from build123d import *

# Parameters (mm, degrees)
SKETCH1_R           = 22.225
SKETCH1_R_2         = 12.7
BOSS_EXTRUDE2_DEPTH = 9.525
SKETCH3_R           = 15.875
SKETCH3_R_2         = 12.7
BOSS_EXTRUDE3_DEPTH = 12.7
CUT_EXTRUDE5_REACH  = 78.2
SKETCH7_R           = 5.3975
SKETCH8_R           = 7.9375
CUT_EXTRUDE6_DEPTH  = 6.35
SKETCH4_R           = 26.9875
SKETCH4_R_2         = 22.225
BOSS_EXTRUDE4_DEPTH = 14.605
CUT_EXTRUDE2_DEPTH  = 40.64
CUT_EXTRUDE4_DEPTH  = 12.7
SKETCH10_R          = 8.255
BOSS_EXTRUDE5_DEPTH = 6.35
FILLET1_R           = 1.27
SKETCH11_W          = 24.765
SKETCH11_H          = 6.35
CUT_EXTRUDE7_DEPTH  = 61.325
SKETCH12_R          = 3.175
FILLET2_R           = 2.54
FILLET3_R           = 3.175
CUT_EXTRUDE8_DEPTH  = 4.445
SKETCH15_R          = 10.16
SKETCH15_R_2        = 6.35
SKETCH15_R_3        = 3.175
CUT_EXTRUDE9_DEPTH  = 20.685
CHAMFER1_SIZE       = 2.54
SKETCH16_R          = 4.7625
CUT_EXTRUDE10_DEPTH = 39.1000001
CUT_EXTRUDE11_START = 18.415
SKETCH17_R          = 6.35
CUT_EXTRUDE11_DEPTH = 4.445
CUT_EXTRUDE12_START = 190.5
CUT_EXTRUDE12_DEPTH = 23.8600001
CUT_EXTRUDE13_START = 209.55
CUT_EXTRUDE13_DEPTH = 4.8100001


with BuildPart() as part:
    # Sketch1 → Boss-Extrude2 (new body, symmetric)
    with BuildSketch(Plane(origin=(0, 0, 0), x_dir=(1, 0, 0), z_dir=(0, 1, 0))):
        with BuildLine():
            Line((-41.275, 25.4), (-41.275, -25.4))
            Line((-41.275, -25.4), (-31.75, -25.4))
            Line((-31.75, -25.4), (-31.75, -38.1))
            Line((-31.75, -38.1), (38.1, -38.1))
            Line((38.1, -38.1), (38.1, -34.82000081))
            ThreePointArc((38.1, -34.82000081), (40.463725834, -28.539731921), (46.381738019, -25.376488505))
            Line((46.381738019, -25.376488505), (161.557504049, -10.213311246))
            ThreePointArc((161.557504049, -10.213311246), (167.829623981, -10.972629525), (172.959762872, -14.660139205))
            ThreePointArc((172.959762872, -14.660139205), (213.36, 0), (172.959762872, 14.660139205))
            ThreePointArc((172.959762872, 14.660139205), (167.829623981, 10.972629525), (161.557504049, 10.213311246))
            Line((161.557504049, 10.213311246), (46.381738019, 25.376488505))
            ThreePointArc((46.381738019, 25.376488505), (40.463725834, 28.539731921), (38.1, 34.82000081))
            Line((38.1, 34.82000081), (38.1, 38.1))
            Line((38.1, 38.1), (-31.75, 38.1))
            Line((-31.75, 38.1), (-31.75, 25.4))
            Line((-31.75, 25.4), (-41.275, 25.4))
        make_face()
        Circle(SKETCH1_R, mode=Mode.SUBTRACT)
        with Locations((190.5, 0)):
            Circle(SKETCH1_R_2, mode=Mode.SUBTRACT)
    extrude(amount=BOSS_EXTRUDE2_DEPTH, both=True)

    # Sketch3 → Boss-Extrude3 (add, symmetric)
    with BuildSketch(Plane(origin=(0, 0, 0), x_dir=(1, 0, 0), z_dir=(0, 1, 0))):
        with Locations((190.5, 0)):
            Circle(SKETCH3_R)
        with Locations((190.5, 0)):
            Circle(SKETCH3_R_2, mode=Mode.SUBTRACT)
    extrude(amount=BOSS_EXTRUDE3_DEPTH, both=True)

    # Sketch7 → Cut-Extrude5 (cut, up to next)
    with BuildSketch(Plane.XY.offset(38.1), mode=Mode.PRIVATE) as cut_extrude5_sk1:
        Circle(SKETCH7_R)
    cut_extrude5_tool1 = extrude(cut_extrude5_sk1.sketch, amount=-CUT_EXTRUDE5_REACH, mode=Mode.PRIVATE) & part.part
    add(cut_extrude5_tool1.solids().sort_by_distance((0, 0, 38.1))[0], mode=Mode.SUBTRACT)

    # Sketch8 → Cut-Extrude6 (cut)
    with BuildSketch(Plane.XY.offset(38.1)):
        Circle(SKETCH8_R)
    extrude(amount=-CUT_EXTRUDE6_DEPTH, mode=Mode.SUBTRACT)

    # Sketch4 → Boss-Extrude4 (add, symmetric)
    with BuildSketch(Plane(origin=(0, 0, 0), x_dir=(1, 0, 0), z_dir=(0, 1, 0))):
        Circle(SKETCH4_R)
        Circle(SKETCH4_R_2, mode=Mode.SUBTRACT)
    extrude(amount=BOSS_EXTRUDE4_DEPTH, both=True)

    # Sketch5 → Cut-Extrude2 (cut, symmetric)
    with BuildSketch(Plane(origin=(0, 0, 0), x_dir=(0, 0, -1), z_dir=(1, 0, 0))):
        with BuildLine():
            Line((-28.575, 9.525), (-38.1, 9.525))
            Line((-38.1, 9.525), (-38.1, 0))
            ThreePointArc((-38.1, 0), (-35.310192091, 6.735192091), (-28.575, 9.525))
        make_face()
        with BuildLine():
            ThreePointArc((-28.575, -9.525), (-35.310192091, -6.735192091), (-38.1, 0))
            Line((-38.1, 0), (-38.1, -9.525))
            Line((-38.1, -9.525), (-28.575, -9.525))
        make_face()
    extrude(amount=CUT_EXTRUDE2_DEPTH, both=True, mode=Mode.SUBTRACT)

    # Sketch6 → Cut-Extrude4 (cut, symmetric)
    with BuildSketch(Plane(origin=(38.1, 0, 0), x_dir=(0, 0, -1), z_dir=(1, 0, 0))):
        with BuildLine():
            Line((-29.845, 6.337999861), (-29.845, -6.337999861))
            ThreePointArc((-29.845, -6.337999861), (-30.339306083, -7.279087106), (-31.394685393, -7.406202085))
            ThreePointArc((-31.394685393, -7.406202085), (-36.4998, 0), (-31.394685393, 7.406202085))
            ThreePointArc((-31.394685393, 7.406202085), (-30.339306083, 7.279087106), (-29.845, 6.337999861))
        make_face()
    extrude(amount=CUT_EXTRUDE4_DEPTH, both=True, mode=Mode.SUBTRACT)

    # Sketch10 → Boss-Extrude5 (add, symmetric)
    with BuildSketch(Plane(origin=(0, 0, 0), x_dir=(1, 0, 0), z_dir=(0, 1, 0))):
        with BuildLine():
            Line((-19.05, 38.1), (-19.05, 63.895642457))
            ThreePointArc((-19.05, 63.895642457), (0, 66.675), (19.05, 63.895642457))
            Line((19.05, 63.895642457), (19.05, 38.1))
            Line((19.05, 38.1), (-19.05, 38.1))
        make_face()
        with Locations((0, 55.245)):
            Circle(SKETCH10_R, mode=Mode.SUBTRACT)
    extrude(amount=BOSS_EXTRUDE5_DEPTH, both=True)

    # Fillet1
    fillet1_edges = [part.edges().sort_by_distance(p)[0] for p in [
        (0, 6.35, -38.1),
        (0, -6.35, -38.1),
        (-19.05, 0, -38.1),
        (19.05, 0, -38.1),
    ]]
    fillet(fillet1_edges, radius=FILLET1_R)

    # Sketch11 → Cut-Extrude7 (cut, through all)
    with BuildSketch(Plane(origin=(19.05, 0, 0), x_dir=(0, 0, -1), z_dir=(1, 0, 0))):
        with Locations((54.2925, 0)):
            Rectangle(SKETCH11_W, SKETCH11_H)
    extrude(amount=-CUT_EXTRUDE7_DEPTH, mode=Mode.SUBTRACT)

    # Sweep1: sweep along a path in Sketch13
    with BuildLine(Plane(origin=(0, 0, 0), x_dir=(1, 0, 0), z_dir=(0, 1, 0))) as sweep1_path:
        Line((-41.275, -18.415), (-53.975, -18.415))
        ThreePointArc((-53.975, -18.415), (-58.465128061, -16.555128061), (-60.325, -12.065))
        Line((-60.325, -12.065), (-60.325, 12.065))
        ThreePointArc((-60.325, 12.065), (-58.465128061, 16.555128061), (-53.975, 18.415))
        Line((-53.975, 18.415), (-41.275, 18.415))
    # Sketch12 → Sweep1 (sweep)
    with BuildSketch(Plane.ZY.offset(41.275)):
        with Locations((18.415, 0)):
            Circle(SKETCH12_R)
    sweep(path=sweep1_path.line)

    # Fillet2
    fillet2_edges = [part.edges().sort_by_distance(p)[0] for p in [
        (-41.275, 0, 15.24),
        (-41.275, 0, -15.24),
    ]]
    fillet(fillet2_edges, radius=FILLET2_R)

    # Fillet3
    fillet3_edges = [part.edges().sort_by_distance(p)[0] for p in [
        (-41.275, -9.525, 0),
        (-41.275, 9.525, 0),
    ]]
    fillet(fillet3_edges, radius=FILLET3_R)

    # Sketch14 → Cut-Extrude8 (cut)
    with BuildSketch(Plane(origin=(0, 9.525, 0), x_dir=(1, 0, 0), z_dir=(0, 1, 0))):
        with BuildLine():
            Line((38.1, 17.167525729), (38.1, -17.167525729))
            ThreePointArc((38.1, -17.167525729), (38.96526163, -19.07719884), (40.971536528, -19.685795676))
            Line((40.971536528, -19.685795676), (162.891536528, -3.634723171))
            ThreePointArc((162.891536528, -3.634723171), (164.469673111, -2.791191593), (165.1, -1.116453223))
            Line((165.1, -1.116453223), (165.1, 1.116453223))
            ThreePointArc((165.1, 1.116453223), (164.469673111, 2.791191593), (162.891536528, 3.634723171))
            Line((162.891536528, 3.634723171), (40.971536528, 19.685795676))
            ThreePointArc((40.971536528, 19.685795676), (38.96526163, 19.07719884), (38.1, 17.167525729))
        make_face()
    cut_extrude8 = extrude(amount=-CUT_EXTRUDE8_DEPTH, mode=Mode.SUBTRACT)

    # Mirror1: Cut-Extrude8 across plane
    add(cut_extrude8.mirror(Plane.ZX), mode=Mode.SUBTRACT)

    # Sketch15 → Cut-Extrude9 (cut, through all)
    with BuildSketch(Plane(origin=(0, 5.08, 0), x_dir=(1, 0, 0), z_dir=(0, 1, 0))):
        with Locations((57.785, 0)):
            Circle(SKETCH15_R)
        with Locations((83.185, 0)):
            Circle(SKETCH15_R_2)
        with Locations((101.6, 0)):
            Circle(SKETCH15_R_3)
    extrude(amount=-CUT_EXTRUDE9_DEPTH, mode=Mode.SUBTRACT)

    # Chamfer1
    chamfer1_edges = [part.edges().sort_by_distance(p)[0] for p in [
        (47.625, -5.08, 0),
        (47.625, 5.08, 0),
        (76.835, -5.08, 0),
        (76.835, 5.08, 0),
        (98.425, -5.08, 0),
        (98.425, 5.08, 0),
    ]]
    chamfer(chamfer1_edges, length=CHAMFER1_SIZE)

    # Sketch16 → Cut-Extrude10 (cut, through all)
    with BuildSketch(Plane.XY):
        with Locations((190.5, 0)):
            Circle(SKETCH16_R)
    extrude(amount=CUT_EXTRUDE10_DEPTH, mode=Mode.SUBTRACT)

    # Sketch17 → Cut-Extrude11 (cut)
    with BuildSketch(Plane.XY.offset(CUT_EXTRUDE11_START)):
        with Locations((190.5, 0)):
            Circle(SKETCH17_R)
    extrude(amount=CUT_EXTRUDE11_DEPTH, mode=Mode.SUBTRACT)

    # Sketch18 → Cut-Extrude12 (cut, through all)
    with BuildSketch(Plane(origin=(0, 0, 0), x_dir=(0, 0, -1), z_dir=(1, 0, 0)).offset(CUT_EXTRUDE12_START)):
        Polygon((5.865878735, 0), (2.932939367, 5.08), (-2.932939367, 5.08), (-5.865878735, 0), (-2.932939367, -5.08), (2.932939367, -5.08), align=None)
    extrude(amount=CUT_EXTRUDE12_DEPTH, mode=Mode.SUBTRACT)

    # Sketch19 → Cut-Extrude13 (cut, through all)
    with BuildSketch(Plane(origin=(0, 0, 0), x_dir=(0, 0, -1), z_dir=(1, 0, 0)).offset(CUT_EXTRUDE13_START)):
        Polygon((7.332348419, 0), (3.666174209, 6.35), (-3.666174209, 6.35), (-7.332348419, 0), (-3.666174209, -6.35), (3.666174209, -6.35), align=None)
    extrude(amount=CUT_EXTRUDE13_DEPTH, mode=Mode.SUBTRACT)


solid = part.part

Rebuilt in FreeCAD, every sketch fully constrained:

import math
import FreeCAD as App
import Part
import Sketcher

V = App.Vector
Q = App.Units.Quantity


def edges_at(feature, points):
    """Names of the edges that pass closest to the given points."""
    edges = feature.Shape.Edges
    near = lambda p: min(range(len(edges)), key=lambda i: edges[i].distToShape(Part.Vertex(*p))[0])
    return sorted({f"Edge{near(p) + 1}" for p in points})

doc = App.newDocument("Part")
body = doc.addObject("PartDesign::Body", "Body")

sketch1 = body.newObject("Sketcher::SketchObject", "Sketch")
sketch1.AttachmentSupport = (doc.getObject("XZ_Plane"), [""])
sketch1.MapMode = "FlatFace"
sketch1.addGeometry([
    Part.LineSegment(V(-41.275, -25.4, 0), V(-41.275, 25.4, 0)),
    Part.LineSegment(V(-41.275, 25.4, 0), V(-31.75, 25.4, 0)),
    Part.LineSegment(V(-31.75, 25.4, 0), V(-31.75, 38.1, 0)),
    Part.LineSegment(V(-31.75, 38.1, 0), V(38.1, 38.1, 0)),
    Part.LineSegment(V(38.1, 38.1, 0), V(38.1, 34.820001, 0)),
    Part.ArcOfCircle(Part.Circle(V(47.625, 34.820001, 0), V(0, 0, 1), 9.525), math.radians(180), math.radians(262.5)),
    Part.LineSegment(V(46.381738, 25.376489, 0), V(161.557504, 10.213311, 0)),
    Part.ArcOfCircle(Part.Circle(V(163.215187, 22.804661, 0), V(0, 0, 1), 12.7), math.radians(-97.5), math.radians(-39.888895)),
    Part.ArcOfCircle(Part.Circle(V(190.5, 0, 0), V(0, 0, 1), 22.86), math.radians(-140.111105), math.radians(140.111105)),
    Part.ArcOfCircle(Part.Circle(V(163.215187, -22.804661, 0), V(0, 0, 1), 12.7), math.radians(39.888895), math.radians(97.5)),
    Part.LineSegment(V(161.557504, -10.213311, 0), V(46.381738, -25.376489, 0)),
    Part.ArcOfCircle(Part.Circle(V(47.625, -34.820001, 0), V(0, 0, 1), 9.525), math.radians(97.5), math.radians(180)),
    Part.LineSegment(V(38.1, -34.820001, 0), V(38.1, -38.1, 0)),
    Part.LineSegment(V(38.1, -38.1, 0), V(-31.75, -38.1, 0)),
    Part.LineSegment(V(-31.75, -38.1, 0), V(-31.75, -25.4, 0)),
    Part.LineSegment(V(-31.75, -25.4, 0), V(-41.275, -25.4, 0)),
    Part.Circle(V(0, 0, 0), V(0, 0, 1), 22.225),
    Part.Circle(V(190.5, 0, 0), V(0, 0, 1), 12.7),
], False)
sketch1.addConstraint([
    Sketcher.Constraint("Coincident", 0, 2, 1, 1),
    Sketcher.Constraint("Coincident", 1, 2, 2, 1),
    Sketcher.Constraint("Coincident", 2, 2, 3, 1),
    Sketcher.Constraint("Coincident", 3, 2, 4, 1),
    Sketcher.Constraint("Tangent", 4, 2, 5, 1),
    Sketcher.Constraint("Tangent", 5, 2, 6, 1),
    Sketcher.Constraint("Tangent", 6, 2, 7, 1),
    Sketcher.Constraint("Tangent", 7, 2, 8, 2),
    Sketcher.Constraint("Tangent", 8, 1, 9, 1),
    Sketcher.Constraint("Tangent", 9, 2, 10, 1),
    Sketcher.Constraint("Tangent", 10, 2, 11, 1),
    Sketcher.Constraint("Tangent", 11, 2, 12, 1),
    Sketcher.Constraint("Coincident", 12, 2, 13, 1),
    Sketcher.Constraint("Coincident", 13, 2, 14, 1),
    Sketcher.Constraint("Coincident", 14, 2, 15, 1),
    Sketcher.Constraint("Coincident", 15, 2, 0, 1),
    Sketcher.Constraint("Vertical", 0),
    Sketcher.Constraint("Horizontal", 1),
    Sketcher.Constraint("Vertical", 2),
    Sketcher.Constraint("Horizontal", 3),
    Sketcher.Constraint("Vertical", 4),
    Sketcher.Constraint("Vertical", 12),
    Sketcher.Constraint("Horizontal", 13),
    Sketcher.Constraint("Vertical", 14),
    Sketcher.Constraint("Horizontal", 15),
    Sketcher.Constraint("Coincident", 16, 3, -1, 1),
    Sketcher.Constraint("Coincident", 17, 3, 8, 3),
    Sketcher.Constraint("Equal", 7, 9),
    Sketcher.Constraint("Equal", 5, 11),
    Sketcher.Constraint("Equal", 9, 17),
    Sketcher.Constraint("Symmetric", 7, 3, 9, 3, -1),
    Sketcher.Constraint("Symmetric", 5, 3, 11, 3, -1),
    Sketcher.Constraint("Symmetric", 2, 2, 13, 2, -1),
    Sketcher.Constraint("Equal", 2, 14),
    Sketcher.Constraint("Diameter", 17, Q("1 in")),
    Sketcher.Constraint("Radius", 8, Q("0.9 in")),
    Sketcher.Constraint("Diameter", 16, Q("1.75 in")),
    Sketcher.Constraint("DistanceY", 0, 1, 0, 2, Q("2 in")),
    Sketcher.Constraint("DistanceY", 2, 1, 2, 2, Q("0.5 in")),
    Sketcher.Constraint("Radius", 5, Q("0.375 in")),
    Sketcher.Constraint("DistanceX", 3, 1, 3, 2, Q("2.75 in")),
    Sketcher.Constraint("DistanceX", -1, 1, 8, 3, Q("7.5 in")),
    Sketcher.Constraint("DistanceX", -1, 1, 3, 2, Q("1.5 in")),
    Sketcher.Constraint("Angle", 6, Q("-7.5 deg")),
    Sketcher.Constraint("DistanceX", 0, 2, 5, 3, Q("3.5 in")),
    Sketcher.Constraint("DistanceY", 4, 2, 4, 1, Q("3.279999 mm")),
])
pad1 = body.newObject("PartDesign::Pad", "Pad")
pad1.Profile = sketch1
pad1.Length = Q("0.75 in")
pad1.Midplane = True

sketch2 = body.newObject("Sketcher::SketchObject", "Sketch001")
sketch2.AttachmentSupport = (doc.getObject("XZ_Plane"), [""])
sketch2.MapMode = "FlatFace"
sketch2.addGeometry([
    Part.Circle(V(190.5, 0, 0), V(0, 0, 1), 15.875),
    Part.Circle(V(190.5, 0, 0), V(0, 0, 1), 12.7),
], False)
sketch2.addConstraint([
    Sketcher.Constraint("Coincident", 1, 3, 0, 3),
    Sketcher.Constraint("PointOnObject", 0, 3, -1),
    Sketcher.Constraint("Diameter", 1, Q("1 in")),
    Sketcher.Constraint("Diameter", 0, Q("1.25 in")),
    Sketcher.Constraint("DistanceX", -1, 1, 0, 3, Q("7.5 in")),
])
pad2 = body.newObject("PartDesign::Pad", "Pad001")
pad2.Profile = sketch2
pad2.Length = Q("1 in")
pad2.Midplane = True

sketch3 = body.newObject("Sketcher::SketchObject", "Sketch002")
sketch3.AttachmentSupport = (doc.getObject("XY_Plane"), [""])
sketch3.MapMode = "FlatFace"
sketch3.AttachmentOffset = App.Placement(V(0, 0, 1.5 * 25.4), App.Rotation())
sketch3.addGeometry(Part.Circle(V(0, 0, 0), V(0, 0, 1), 5.3975), False)
sketch3.addConstraint([
    Sketcher.Constraint("Coincident", 0, 3, -1, 1),
    Sketcher.Constraint("Diameter", 0, Q("0.425 in")),
])
pocket1 = body.newObject("PartDesign::Pocket", "Pocket")
pocket1.Profile = sketch3
pocket1.Type = "UpToFirst"

sketch4 = body.newObject("Sketcher::SketchObject", "Sketch003")
sketch4.AttachmentSupport = (doc.getObject("XY_Plane"), [""])
sketch4.MapMode = "FlatFace"
sketch4.AttachmentOffset = App.Placement(V(0, 0, 1.5 * 25.4), App.Rotation())
sketch4.addGeometry(Part.Circle(V(0, 0, 0), V(0, 0, 1), 7.9375), False)
sketch4.addConstraint([
    Sketcher.Constraint("Coincident", 0, 3, -1, 1),
    Sketcher.Constraint("Diameter", 0, Q("0.625 in")),
])
pocket2 = body.newObject("PartDesign::Pocket", "Pocket001")
pocket2.Profile = sketch4
pocket2.Length = Q("0.25 in")

sketch5 = body.newObject("Sketcher::SketchObject", "Sketch004")
sketch5.AttachmentSupport = (doc.getObject("XZ_Plane"), [""])
sketch5.MapMode = "FlatFace"
sketch5.addGeometry([
    Part.Circle(V(0, 0, 0), V(0, 0, 1), 26.9875),
    Part.Circle(V(0, 0, 0), V(0, 0, 1), 22.225),
], False)
sketch5.addConstraint([
    Sketcher.Constraint("Coincident", 0, 3, -1, 1),
    Sketcher.Constraint("Coincident", 1, 3, -1, 1),
    Sketcher.Constraint("Diameter", 1, Q("1.75 in")),
    Sketcher.Constraint("Diameter", 0, Q("2.125 in")),
])
pad3 = body.newObject("PartDesign::Pad", "Pad002")
pad3.Profile = sketch5
pad3.Length = Q("1.15 in")
pad3.Midplane = True

sketch6 = body.newObject("Sketcher::SketchObject", "Sketch005")
sketch6.AttachmentSupport = (doc.getObject("YZ_Plane"), [""])
sketch6.MapMode = "FlatFace"
sketch6.addGeometry([
    Part.LineSegment(V(9.525, 28.575, 0), V(9.525, 38.1, 0)),
    Part.LineSegment(V(9.525, 38.1, 0), V(0, 38.1, 0)),
    Part.ArcOfCircle(Part.Circle(V(0, 28.575, 0), V(0, 0, 1), 9.525), math.radians(0), math.radians(90)),
    Part.ArcOfCircle(Part.Circle(V(0, 28.575, 0), V(0, 0, 1), 9.525), math.radians(90), math.radians(180)),
    Part.LineSegment(V(0, 38.1, 0), V(-9.525, 38.1, 0)),
    Part.LineSegment(V(-9.525, 38.1, 0), V(-9.525, 28.575, 0)),
], False)
sketch6.addConstraint([
    Sketcher.Constraint("Coincident", 0, 2, 1, 1),
    Sketcher.Constraint("Tangent", 1, 2, 2, 2),
    Sketcher.Constraint("Tangent", 2, 1, 0, 1),
    Sketcher.Constraint("Tangent", 3, 1, 4, 1),
    Sketcher.Constraint("Coincident", 4, 2, 5, 1),
    Sketcher.Constraint("Tangent", 5, 2, 3, 2),
    Sketcher.Constraint("Vertical", 0),
    Sketcher.Constraint("Horizontal", 1),
    Sketcher.Constraint("Horizontal", 4),
    Sketcher.Constraint("Vertical", 5),
    Sketcher.Constraint("Coincident", 3, 3, 2, 3),
    Sketcher.Constraint("Equal", 2, 3),
    Sketcher.Constraint("PointOnObject", 2, 3, -2),
    Sketcher.Constraint("Radius", 2, Q("0.375 in")),
    Sketcher.Constraint("DistanceY", -1, 1, 0, 2, Q("1.5 in")),
])
pocket3 = body.newObject("PartDesign::Pocket", "Pocket002")
pocket3.Profile = sketch6
pocket3.Length = Q("3.2 in")
pocket3.Midplane = True

sketch7 = body.newObject("Sketcher::SketchObject", "Sketch006")
sketch7.AttachmentSupport = (doc.getObject("YZ_Plane"), [""])
sketch7.MapMode = "FlatFace"
sketch7.AttachmentOffset = App.Placement(V(0, 0, 1.5 * 25.4), App.Rotation())
sketch7.addGeometry([
    Part.LineSegment(V(-6.338, 29.845, 0), V(6.338, 29.845, 0)),
    Part.ArcOfCircle(Part.Circle(V(6.338, 30.988, 0), V(0, 0, 1), 1.143), math.radians(-90), math.radians(20.842804)),
    Part.ArcOfCircle(Part.Circle(V(0, 28.575, 0), V(0, 0, 1), 7.9248), math.radians(20.842804), math.radians(159.157196)),
    Part.ArcOfCircle(Part.Circle(V(-6.338, 30.988, 0), V(0, 0, 1), 1.143), math.radians(159.157196), math.radians(270)),
], False)
sketch7.addConstraint([
    Sketcher.Constraint("Tangent", 0, 2, 1, 1),
    Sketcher.Constraint("Tangent", 1, 2, 2, 1),
    Sketcher.Constraint("Tangent", 2, 2, 3, 1),
    Sketcher.Constraint("Tangent", 3, 2, 0, 1),
    Sketcher.Constraint("Horizontal", 0),
    Sketcher.Constraint("Equal", 1, 3),
    Sketcher.Constraint("PointOnObject", 2, 3, -2),
    Sketcher.Constraint("Radius", 1, Q("0.045 in")),
    Sketcher.Constraint("Radius", 2, Q("0.312 in")),
    Sketcher.Constraint("DistanceY", -1, 1, 1, 3, Q("1.22 in")),
    Sketcher.Constraint("DistanceY", 2, 3, 0, 2, Q("0.05 in")),
])
pocket4 = body.newObject("PartDesign::Pocket", "Pocket003")
pocket4.Profile = sketch7
pocket4.Length = Q("1 in")
pocket4.Midplane = True

sketch8 = body.newObject("Sketcher::SketchObject", "Sketch007")
sketch8.AttachmentSupport = (doc.getObject("XZ_Plane"), [""])
sketch8.MapMode = "FlatFace"
sketch8.addGeometry([
    Part.LineSegment(V(-19.05, -63.895642, 0), V(-19.05, -38.1, 0)),
    Part.LineSegment(V(-19.05, -38.1, 0), V(19.05, -38.1, 0)),
    Part.LineSegment(V(19.05, -38.1, 0), V(19.05, -63.895642, 0)),
    Part.ArcOfCircle(Part.Circle(V(0, 0, 0), V(0, 0, 1), 66.675), math.radians(-106.60155), math.radians(-73.39845)),
    Part.Circle(V(0, -55.245, 0), V(0, 0, 1), 8.255),
], False)
sketch8.addConstraint([
    Sketcher.Constraint("Coincident", 0, 2, 1, 1),
    Sketcher.Constraint("Coincident", 1, 2, 2, 1),
    Sketcher.Constraint("Coincident", 2, 2, 3, 2),
    Sketcher.Constraint("Coincident", 3, 1, 0, 1),
    Sketcher.Constraint("Vertical", 0),
    Sketcher.Constraint("Horizontal", 1),
    Sketcher.Constraint("Vertical", 2),
    Sketcher.Constraint("Coincident", 3, 3, -1, 1),
    Sketcher.Constraint("PointOnObject", 4, 3, -2),
    Sketcher.Constraint("Horizontal", 2, 2, 3, 1),
    Sketcher.Constraint("Diameter", 4, Q("0.65 in")),
    Sketcher.Constraint("DistanceX", 1, 1, 1, 2, Q("1.5 in")),
    Sketcher.Constraint("Radius", 3, Q("2.625 in")),
    Sketcher.Constraint("DistanceY", 0, 2, -1, 1, Q("1.5 in")),
    Sketcher.Constraint("DistanceY", 4, 3, -1, 1, Q("2.175 in")),
])
pad4 = body.newObject("PartDesign::Pad", "Pad003")
pad4.Profile = sketch8
pad4.Length = Q("0.5 in")
pad4.Midplane = True
doc.recompute()

fillet = body.newObject("PartDesign::Fillet", "Fillet")
fillet.Base = (pad4, edges_at(pad4, [
    (0, 6.35, -38.1),
    (0, -6.35, -38.1),
    (-19.05, 0, -38.1),
    (19.05, 0, -38.1),
]))
fillet.Radius = Q("0.05 in")

sketch9 = body.newObject("Sketcher::SketchObject", "Sketch008")
sketch9.AttachmentSupport = (doc.getObject("YZ_Plane"), [""])
sketch9.MapMode = "FlatFace"
sketch9.AttachmentOffset = App.Placement(V(0, 0, 0.75 * 25.4), App.Rotation())
sketch9.addGeometry([
    Part.LineSegment(V(3.175, -41.91, 0), V(-3.175, -41.91, 0)),
    Part.LineSegment(V(-3.175, -41.91, 0), V(-3.175, -66.675, 0)),
    Part.LineSegment(V(-3.175, -66.675, 0), V(3.175, -66.675, 0)),
    Part.LineSegment(V(3.175, -66.675, 0), V(3.175, -41.91, 0)),
], False)
sketch9.addConstraint([
    Sketcher.Constraint("Coincident", 0, 2, 1, 1),
    Sketcher.Constraint("Coincident", 1, 2, 2, 1),
    Sketcher.Constraint("Coincident", 2, 2, 3, 1),
    Sketcher.Constraint("Coincident", 3, 2, 0, 1),
    Sketcher.Constraint("Horizontal", 0),
    Sketcher.Constraint("Vertical", 1),
    Sketcher.Constraint("Horizontal", 2),
    Sketcher.Constraint("Vertical", 3),
    Sketcher.Constraint("DistanceX", 0, 2, 0, 1, Q("0.25 in")),
    Sketcher.Constraint("DistanceY", 1, 2, 1, 1, Q("0.975 in")),
    Sketcher.Constraint("DistanceY", 0, 2, -1, 1, Q("1.65 in")),
    Sketcher.Constraint("DistanceX", 0, 2, -1, 1, Q("0.125 in")),
])
pocket5 = body.newObject("PartDesign::Pocket", "Pocket004")
pocket5.Profile = sketch9
pocket5.Type = "ThroughAll"

sketch10 = body.newObject("Sketcher::SketchObject", "Sketch009")
sketch10.AttachmentSupport = (doc.getObject("YZ_Plane"), [""])
sketch10.MapMode = "FlatFace"
sketch10.AttachmentOffset = App.Placement(V(0, 0, -1.625 * 25.4), App.Rotation())
sketch10.addGeometry(Part.Circle(V(0, 18.415, 0), V(0, 0, 1), 3.175), False)
sketch10.addConstraint([
    Sketcher.Constraint("PointOnObject", 0, 3, -2),
    Sketcher.Constraint("Diameter", 0, Q("0.25 in")),
    Sketcher.Constraint("DistanceY", -1, 1, 0, 3, Q("0.725 in")),
])

sketch11 = body.newObject("Sketcher::SketchObject", "Sketch010")
sketch11.AttachmentSupport = (doc.getObject("XZ_Plane"), [""])
sketch11.MapMode = "FlatFace"
sketch11.addGeometry([
    Part.LineSegment(V(-41.275, 18.415, 0), V(-53.975, 18.415, 0)),
    Part.ArcOfCircle(Part.Circle(V(-53.975, 12.065, 0), V(0, 0, 1), 6.35), math.radians(90), math.radians(180)),
    Part.LineSegment(V(-60.325, 12.065, 0), V(-60.325, -12.065, 0)),
    Part.ArcOfCircle(Part.Circle(V(-53.975, -12.065, 0), V(0, 0, 1), 6.35), math.radians(180), math.radians(270)),
    Part.LineSegment(V(-53.975, -18.415, 0), V(-41.275, -18.415, 0)),
], False)
sketch11.addConstraint([
    Sketcher.Constraint("Tangent", 0, 2, 1, 1),
    Sketcher.Constraint("Tangent", 1, 2, 2, 1),
    Sketcher.Constraint("Tangent", 2, 2, 3, 1),
    Sketcher.Constraint("Tangent", 3, 2, 4, 1),
    Sketcher.Constraint("Horizontal", 0),
    Sketcher.Constraint("Vertical", 2),
    Sketcher.Constraint("Horizontal", 4),
    Sketcher.Constraint("Equal", 1, 3),
    Sketcher.Constraint("Symmetric", 0, 1, 4, 2, -1),
    Sketcher.Constraint("Radius", 1, Q("0.25 in")),
    Sketcher.Constraint("DistanceX", 0, 2, 0, 1, Q("0.5 in")),
    Sketcher.Constraint("DistanceY", 2, 2, 2, 1, Q("0.95 in")),
    Sketcher.Constraint("DistanceX", 1, 3, -1, 1, Q("2.125 in")),
])
doc.recompute()

additivepipe = body.newObject("PartDesign::AdditivePipe", "AdditivePipe")
additivepipe.Profile = sketch10
additivepipe.Spine = (sketch11, ["Edge1", "Edge2", "Edge3", "Edge4", "Edge5"])
doc.recompute()

fillet2 = body.newObject("PartDesign::Fillet", "Fillet001")
fillet2.Base = (additivepipe, edges_at(additivepipe, [(-41.275, 0, 15.24), (-41.275, 0, -15.24)]))
fillet2.Radius = Q("0.1 in")
doc.recompute()

fillet3 = body.newObject("PartDesign::Fillet", "Fillet002")
fillet3.Base = (fillet2, edges_at(fillet2, [(-41.275, -9.525, 0), (-41.275, 9.525, 0)]))
fillet3.Radius = Q("0.125 in")

sketch12 = body.newObject("Sketcher::SketchObject", "Sketch011")
sketch12.AttachmentSupport = (doc.getObject("XZ_Plane"), [""])
sketch12.MapMode = "FlatFace"
sketch12.AttachmentOffset = App.Placement(V(0, 0, -0.375 * 25.4), App.Rotation())
sketch12.addGeometry([
    Part.LineSegment(V(38.1, -17.167526, 0), V(38.1, 17.167526, 0)),
    Part.ArcOfCircle(Part.Circle(V(40.64, 17.167526, 0), V(0, 0, 1), 2.54), math.radians(82.5), math.radians(180)),
    Part.LineSegment(V(40.971537, 19.685796, 0), V(162.891537, 3.634723, 0)),
    Part.ArcOfCircle(Part.Circle(V(162.56, 1.116453, 0), V(0, 0, 1), 2.54), math.radians(0), math.radians(82.5)),
    Part.LineSegment(V(165.1, 1.116453, 0), V(165.1, -1.116453, 0)),
    Part.ArcOfCircle(Part.Circle(V(162.56, -1.116453, 0), V(0, 0, 1), 2.54), math.radians(-82.5), math.radians(0)),
    Part.LineSegment(V(162.891537, -3.634723, 0), V(40.971537, -19.685796, 0)),
    Part.ArcOfCircle(Part.Circle(V(40.64, -17.167526, 0), V(0, 0, 1), 2.54), math.radians(180), math.radians(277.5)),
], False)
sketch12.addConstraint([
    Sketcher.Constraint("Tangent", 0, 2, 1, 2),
    Sketcher.Constraint("Tangent", 1, 1, 2, 1),
    Sketcher.Constraint("Tangent", 2, 2, 3, 2),
    Sketcher.Constraint("Tangent", 3, 1, 4, 1),
    Sketcher.Constraint("Tangent", 4, 2, 5, 2),
    Sketcher.Constraint("Tangent", 5, 1, 6, 1),
    Sketcher.Constraint("Tangent", 6, 2, 7, 2),
    Sketcher.Constraint("Tangent", 7, 1, 0, 1),
    Sketcher.Constraint("Vertical", 0),
    Sketcher.Constraint("Vertical", 4),
    Sketcher.Constraint("Equal", 1, 3),
    Sketcher.Constraint("Equal", 3, 5),
    Sketcher.Constraint("Equal", 5, 7),
    Sketcher.Constraint("Symmetric", 2, 2, 5, 1, -1),
    Sketcher.Constraint("Radius", 1, Q("0.1 in")),
    Sketcher.Constraint("DistanceX", -1, 1, 1, 3, Q("1.6 in")),
    Sketcher.Constraint("DistanceX", -1, 1, 3, 3, Q("6.4 in")),
    Sketcher.Constraint("Angle", 2, Q("-7.5 deg")),
    Sketcher.Constraint("DistanceY", 0, 1, 0, 2, Q("34.335051 mm")),
])
pocket6 = body.newObject("PartDesign::Pocket", "Pocket005")
pocket6.Profile = sketch12
pocket6.Length = Q("0.175 in")
pocket6.Reversed = True
doc.recompute()

mirrored = body.newObject("PartDesign::Mirrored", "Mirrored")
mirrored.Originals = [pocket6]
mirrored.MirrorPlane = (doc.getObject("XZ_Plane"), [""])
body.Tip = mirrored

sketch13 = body.newObject("Sketcher::SketchObject", "Sketch012")
sketch13.AttachmentSupport = (doc.getObject("XZ_Plane"), [""])
sketch13.MapMode = "FlatFace"
sketch13.AttachmentOffset = App.Placement(V(0, 0, -0.2 * 25.4), App.Rotation())
sketch13.addGeometry([
    Part.Circle(V(57.785, 0, 0), V(0, 0, 1), 10.16),
    Part.Circle(V(83.185, 0, 0), V(0, 0, 1), 6.35),
    Part.Circle(V(101.6, 0, 0), V(0, 0, 1), 3.175),
], False)
sketch13.addConstraint([
    Sketcher.Constraint("PointOnObject", 0, 3, -1),
    Sketcher.Constraint("PointOnObject", 1, 3, -1),
    Sketcher.Constraint("PointOnObject", 2, 3, -1),
    Sketcher.Constraint("Diameter", 0, Q("0.8 in")),
    Sketcher.Constraint("Diameter", 1, Q("0.5 in")),
    Sketcher.Constraint("Diameter", 2, Q("0.25 in")),
    Sketcher.Constraint("DistanceX", -1, 1, 2, 3, Q("4 in")),
    Sketcher.Constraint("DistanceX", 0, 3, 1, 3, Q("1 in")),
    Sketcher.Constraint("DistanceX", -1, 1, 0, 3, Q("2.275 in")),
])
pocket7 = body.newObject("PartDesign::Pocket", "Pocket006")
pocket7.Profile = sketch13
pocket7.Type = "ThroughAll"
pocket7.Reversed = True
doc.recompute()

chamfer = body.newObject("PartDesign::Chamfer", "Chamfer")
chamfer.Base = (pocket7, edges_at(pocket7, [
    (47.625, -5.08, 0),
    (47.625, 5.08, 0),
    (76.835, -5.08, 0),
    (76.835, 5.08, 0),
    (98.425, -5.08, 0),
    (98.425, 5.08, 0),
]))
chamfer.Size = Q("0.1 in")

sketch14 = body.newObject("Sketcher::SketchObject", "Sketch013")
sketch14.AttachmentSupport = (doc.getObject("XY_Plane"), [""])
sketch14.MapMode = "FlatFace"
sketch14.addGeometry(Part.Circle(V(190.5, 0, 0), V(0, 0, 1), 4.7625), False)
sketch14.addConstraint([
    Sketcher.Constraint("PointOnObject", 0, 3, -1),
    Sketcher.Constraint("Diameter", 0, Q("0.375 in")),
    Sketcher.Constraint("DistanceX", -1, 1, 0, 3, Q("7.5 in")),
])
pocket8 = body.newObject("PartDesign::Pocket", "Pocket007")
pocket8.Profile = sketch14
pocket8.Type = "ThroughAll"
pocket8.Reversed = True

sketch15 = body.newObject("Sketcher::SketchObject", "Sketch014")
sketch15.AttachmentSupport = (doc.getObject("XY_Plane"), [""])
sketch15.MapMode = "FlatFace"
sketch15.AttachmentOffset = App.Placement(V(0, 0, 0.725 * 25.4), App.Rotation())
sketch15.addGeometry(Part.Circle(V(190.5, 0, 0), V(0, 0, 1), 6.35), False)
sketch15.addConstraint([
    Sketcher.Constraint("PointOnObject", 0, 3, -1),
    Sketcher.Constraint("Diameter", 0, Q("0.5 in")),
    Sketcher.Constraint("DistanceX", -1, 1, 0, 3, Q("7.5 in")),
])
pocket9 = body.newObject("PartDesign::Pocket", "Pocket008")
pocket9.Profile = sketch15
pocket9.Length = Q("0.175 in")
pocket9.Reversed = True

sketch16 = body.newObject("Sketcher::SketchObject", "Sketch015")
sketch16.AttachmentSupport = (doc.getObject("YZ_Plane"), [""])
sketch16.MapMode = "FlatFace"
sketch16.AttachmentOffset = App.Placement(V(0, 0, 7.5 * 25.4), App.Rotation())
sketch16.addGeometry([
    Part.LineSegment(V(0, -5.865879, 0), V(5.08, -2.932939, 0)),
    Part.LineSegment(V(5.08, -2.932939, 0), V(5.08, 2.932939, 0)),
    Part.LineSegment(V(5.08, 2.932939, 0), V(0, 5.865879, 0)),
    Part.LineSegment(V(0, 5.865879, 0), V(-5.08, 2.932939, 0)),
    Part.LineSegment(V(-5.08, 2.932939, 0), V(-5.08, -2.932939, 0)),
    Part.LineSegment(V(-5.08, -2.932939, 0), V(0, -5.865879, 0)),
], False)
sketch16.addConstraint([
    Sketcher.Constraint("Coincident", 0, 2, 1, 1),
    Sketcher.Constraint("Coincident", 1, 2, 2, 1),
    Sketcher.Constraint("Coincident", 2, 2, 3, 1),
    Sketcher.Constraint("Coincident", 3, 2, 4, 1),
    Sketcher.Constraint("Coincident", 4, 2, 5, 1),
    Sketcher.Constraint("Coincident", 5, 2, 0, 1),
    Sketcher.Constraint("Vertical", 1),
    Sketcher.Constraint("Vertical", 4),
    Sketcher.Constraint("Symmetric", 0, 2, 3, 2, -1, 1),
    Sketcher.Constraint("Symmetric", 2, 2, 5, 2, -1, 1),
    Sketcher.Constraint("PointOnObject", 2, 2, -2),
    Sketcher.Constraint("Parallel", 2, 5),
    Sketcher.Constraint("Horizontal", 1, 2, 3, 2),
    Sketcher.Constraint("Angle", 0, Q("30 deg")),
    Sketcher.Constraint("DistanceX", -1, 1, 0, 2, Q("0.2 in")),
    Sketcher.Constraint("DistanceY", 1, 1, 1, 2, Q("5.865879 mm")),
])
pocket10 = body.newObject("PartDesign::Pocket", "Pocket009")
pocket10.Profile = sketch16
pocket10.Type = "ThroughAll"
pocket10.Reversed = True

sketch17 = body.newObject("Sketcher::SketchObject", "Sketch016")
sketch17.AttachmentSupport = (doc.getObject("YZ_Plane"), [""])
sketch17.MapMode = "FlatFace"
sketch17.AttachmentOffset = App.Placement(V(0, 0, 8.25 * 25.4), App.Rotation())
sketch17.addGeometry([
    Part.LineSegment(V(0, -7.332348, 0), V(6.35, -3.666174, 0)),
    Part.LineSegment(V(6.35, -3.666174, 0), V(6.35, 3.666174, 0)),
    Part.LineSegment(V(6.35, 3.666174, 0), V(0, 7.332348, 0)),
    Part.LineSegment(V(0, 7.332348, 0), V(-6.35, 3.666174, 0)),
    Part.LineSegment(V(-6.35, 3.666174, 0), V(-6.35, -3.666174, 0)),
    Part.LineSegment(V(-6.35, -3.666174, 0), V(0, -7.332348, 0)),
], False)
sketch17.addConstraint([
    Sketcher.Constraint("Coincident", 0, 2, 1, 1),
    Sketcher.Constraint("Coincident", 1, 2, 2, 1),
    Sketcher.Constraint("Coincident", 2, 2, 3, 1),
    Sketcher.Constraint("Coincident", 3, 2, 4, 1),
    Sketcher.Constraint("Coincident", 4, 2, 5, 1),
    Sketcher.Constraint("Coincident", 5, 2, 0, 1),
    Sketcher.Constraint("Vertical", 1),
    Sketcher.Constraint("Vertical", 4),
    Sketcher.Constraint("Symmetric", 0, 2, 3, 2, -1, 1),
    Sketcher.Constraint("Symmetric", 2, 2, 5, 2, -1, 1),
    Sketcher.Constraint("PointOnObject", 2, 2, -2),
    Sketcher.Constraint("Parallel", 2, 5),
    Sketcher.Constraint("Horizontal", 1, 2, 3, 2),
    Sketcher.Constraint("Angle", 0, Q("30 deg")),
    Sketcher.Constraint("DistanceX", 3, 2, 1, 2, Q("0.5 in")),
    Sketcher.Constraint("DistanceY", 1, 1, 1, 2, Q("7.332348 mm")),
])
pocket11 = body.newObject("PartDesign::Pocket", "Pocket010")
pocket11.Profile = sketch17
pocket11.Type = "ThroughAll"
pocket11.Reversed = True

doc.recompute()
